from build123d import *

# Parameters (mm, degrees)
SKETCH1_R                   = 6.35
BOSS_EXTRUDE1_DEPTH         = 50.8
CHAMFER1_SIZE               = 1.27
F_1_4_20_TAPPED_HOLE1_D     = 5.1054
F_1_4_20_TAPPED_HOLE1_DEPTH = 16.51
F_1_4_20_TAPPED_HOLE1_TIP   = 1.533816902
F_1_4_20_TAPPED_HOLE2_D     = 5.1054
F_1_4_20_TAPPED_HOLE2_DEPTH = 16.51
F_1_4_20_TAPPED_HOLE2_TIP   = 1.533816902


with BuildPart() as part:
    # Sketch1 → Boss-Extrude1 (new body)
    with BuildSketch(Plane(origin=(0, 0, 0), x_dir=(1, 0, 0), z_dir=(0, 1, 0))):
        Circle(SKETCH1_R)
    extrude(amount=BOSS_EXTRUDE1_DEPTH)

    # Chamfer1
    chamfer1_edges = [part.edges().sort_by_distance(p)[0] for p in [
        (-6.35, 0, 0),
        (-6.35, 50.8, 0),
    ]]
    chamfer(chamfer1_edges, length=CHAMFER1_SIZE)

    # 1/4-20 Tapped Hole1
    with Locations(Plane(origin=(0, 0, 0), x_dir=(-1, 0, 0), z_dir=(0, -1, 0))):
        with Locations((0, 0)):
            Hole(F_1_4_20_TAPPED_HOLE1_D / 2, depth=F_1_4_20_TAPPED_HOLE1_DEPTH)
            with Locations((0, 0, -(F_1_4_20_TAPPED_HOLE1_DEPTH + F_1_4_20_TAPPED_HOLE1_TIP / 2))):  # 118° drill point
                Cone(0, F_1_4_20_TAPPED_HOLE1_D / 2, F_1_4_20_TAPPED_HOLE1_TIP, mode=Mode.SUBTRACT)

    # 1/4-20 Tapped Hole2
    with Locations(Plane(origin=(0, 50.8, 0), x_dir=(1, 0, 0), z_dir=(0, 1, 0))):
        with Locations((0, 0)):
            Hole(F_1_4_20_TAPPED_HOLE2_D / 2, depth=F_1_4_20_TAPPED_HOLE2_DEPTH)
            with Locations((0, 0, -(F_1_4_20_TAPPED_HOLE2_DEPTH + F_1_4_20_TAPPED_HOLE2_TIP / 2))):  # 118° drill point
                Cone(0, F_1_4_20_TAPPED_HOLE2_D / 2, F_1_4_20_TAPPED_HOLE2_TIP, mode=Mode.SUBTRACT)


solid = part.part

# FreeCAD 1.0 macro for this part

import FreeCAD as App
import Part
import Sketcher
Q = App.Units.Quantity


def edges_at(feature, points):
    """Names of the edges that pass closest to the given points."""
    edges = feature.Shape.Edges
    near = lambda p: min(range(len(edges)), key=lambda i: edges[i].distToShape(Part.Vertex(*p))[0])
    return sorted({f"Edge{near(p) + 1}" for p in points})

doc = App.newDocument("Part")
params = doc.addObject("Spreadsheet::Sheet", "Params")
for row, (alias, value) in enumerate([
    ("sketch1_diameter", "0.5 in"),
    ("pad1_length", "2 in"),
    ("chamfer_size", "0.05 in"),
    ("sketch2_diameter", "0.201 in"),
    ("hole_diameter", "0.201 in"),
    ("hole_depth", "0.65 in"),
    ("sketch3_diameter", "0.201 in"),
    ("hole2_diameter", "0.201 in"),
    ("hole2_depth", "0.65 in"),
], start=1):
    params.set(f"A{row}", alias)
    params.set(f"B{row}", "=" + value)
    params.setAlias(f"B{row}", alias)

body = doc.addObject("PartDesign::Body", "Body")

# Sketch on XZ plane
sketch1 = body.newObject("Sketcher::SketchObject", "Sketch")
sketch1.AttachmentSupport = (doc.getObject("XZ_Plane"), [""])
sketch1.MapMode = "FlatFace"
sketch1.addGeometry(Part.Circle(App.Vector(0, 0, 0), App.Vector(0, 0, 1), 6), False)
sketch1.addConstraint([
    Sketcher.Constraint("Coincident", 0, 3, -1, 1),
    Sketcher.Constraint("Diameter", 0, Q("0.5 in")),
])
sketch1.setExpression("Constraints[1]", "Params.sketch1_diameter")
pad1 = body.newObject("PartDesign::Pad", "Pad")
pad1.Profile = sketch1
pad1.setExpression("Length", "Params.pad1_length")
pad1.Reversed = True
doc.recompute()

chamfer = body.newObject("PartDesign::Chamfer", "Chamfer")
chamfer.Base = (pad1, edges_at(pad1, [(-6.35, 0, 0), (-6.35, 50.8, 0)]))
chamfer.setExpression("Size", "Params.chamfer_size")

# Sketch on XZ plane
sketch2 = body.newObject("Sketcher::SketchObject", "Sketch001")
sketch2.AttachmentSupport = (doc.getObject("XZ_Plane"), [""])
sketch2.MapMode = "FlatFace"
sketch2.addGeometry(Part.Circle(App.Vector(0, 0, 0), App.Vector(0, 0, 1), 2.6), False)
sketch2.addConstraint([
    Sketcher.Constraint("Coincident", 0, 3, -1, 1),
    Sketcher.Constraint("Diameter", 0, Q("0.201 in")),
])
sketch2.setExpression("Constraints[1]", "Params.sketch2_diameter")
doc.recompute()
hole = body.newObject("PartDesign::Hole", "Hole")
hole.Profile = sketch2
hole.ThreadType = "None"
hole.setExpression("Diameter", "Params.hole_diameter")
hole.DepthType = "Dimension"
hole.setExpression("Depth", "Params.hole_depth")
hole.DrillPoint = "Angled"
hole.DrillPointAngle = 118

# Sketch on XZ plane
sketch3 = body.newObject("Sketcher::SketchObject", "Sketch002")
sketch3.AttachmentSupport = (doc.getObject("XZ_Plane"), [""])
sketch3.MapMode = "FlatFace"
sketch3.AttachmentOffset = App.Placement(App.Vector(0, 0, -2 * 25.4), App.Rotation())
sketch3.addGeometry(Part.Circle(App.Vector(0, 0, 0), App.Vector(0, 0, 1), 2.6), False)
sketch3.addConstraint([
    Sketcher.Constraint("Coincident", 0, 3, -1, 1),
    Sketcher.Constraint("Diameter", 0, Q("0.201 in")),
])
sketch3.setExpression("Constraints[1]", "Params.sketch3_diameter")
doc.recompute()
hole2 = body.newObject("PartDesign::Hole", "Hole001")
hole2.Profile = sketch3
hole2.ThreadType = "None"
hole2.setExpression("Diameter", "Params.hole2_diameter")
hole2.DepthType = "Dimension"
hole2.setExpression("Depth", "Params.hole2_depth")
hole2.DrillPoint = "Angled"
hole2.DrillPointAngle = 118
hole2.Reversed = True

doc.recompute()
